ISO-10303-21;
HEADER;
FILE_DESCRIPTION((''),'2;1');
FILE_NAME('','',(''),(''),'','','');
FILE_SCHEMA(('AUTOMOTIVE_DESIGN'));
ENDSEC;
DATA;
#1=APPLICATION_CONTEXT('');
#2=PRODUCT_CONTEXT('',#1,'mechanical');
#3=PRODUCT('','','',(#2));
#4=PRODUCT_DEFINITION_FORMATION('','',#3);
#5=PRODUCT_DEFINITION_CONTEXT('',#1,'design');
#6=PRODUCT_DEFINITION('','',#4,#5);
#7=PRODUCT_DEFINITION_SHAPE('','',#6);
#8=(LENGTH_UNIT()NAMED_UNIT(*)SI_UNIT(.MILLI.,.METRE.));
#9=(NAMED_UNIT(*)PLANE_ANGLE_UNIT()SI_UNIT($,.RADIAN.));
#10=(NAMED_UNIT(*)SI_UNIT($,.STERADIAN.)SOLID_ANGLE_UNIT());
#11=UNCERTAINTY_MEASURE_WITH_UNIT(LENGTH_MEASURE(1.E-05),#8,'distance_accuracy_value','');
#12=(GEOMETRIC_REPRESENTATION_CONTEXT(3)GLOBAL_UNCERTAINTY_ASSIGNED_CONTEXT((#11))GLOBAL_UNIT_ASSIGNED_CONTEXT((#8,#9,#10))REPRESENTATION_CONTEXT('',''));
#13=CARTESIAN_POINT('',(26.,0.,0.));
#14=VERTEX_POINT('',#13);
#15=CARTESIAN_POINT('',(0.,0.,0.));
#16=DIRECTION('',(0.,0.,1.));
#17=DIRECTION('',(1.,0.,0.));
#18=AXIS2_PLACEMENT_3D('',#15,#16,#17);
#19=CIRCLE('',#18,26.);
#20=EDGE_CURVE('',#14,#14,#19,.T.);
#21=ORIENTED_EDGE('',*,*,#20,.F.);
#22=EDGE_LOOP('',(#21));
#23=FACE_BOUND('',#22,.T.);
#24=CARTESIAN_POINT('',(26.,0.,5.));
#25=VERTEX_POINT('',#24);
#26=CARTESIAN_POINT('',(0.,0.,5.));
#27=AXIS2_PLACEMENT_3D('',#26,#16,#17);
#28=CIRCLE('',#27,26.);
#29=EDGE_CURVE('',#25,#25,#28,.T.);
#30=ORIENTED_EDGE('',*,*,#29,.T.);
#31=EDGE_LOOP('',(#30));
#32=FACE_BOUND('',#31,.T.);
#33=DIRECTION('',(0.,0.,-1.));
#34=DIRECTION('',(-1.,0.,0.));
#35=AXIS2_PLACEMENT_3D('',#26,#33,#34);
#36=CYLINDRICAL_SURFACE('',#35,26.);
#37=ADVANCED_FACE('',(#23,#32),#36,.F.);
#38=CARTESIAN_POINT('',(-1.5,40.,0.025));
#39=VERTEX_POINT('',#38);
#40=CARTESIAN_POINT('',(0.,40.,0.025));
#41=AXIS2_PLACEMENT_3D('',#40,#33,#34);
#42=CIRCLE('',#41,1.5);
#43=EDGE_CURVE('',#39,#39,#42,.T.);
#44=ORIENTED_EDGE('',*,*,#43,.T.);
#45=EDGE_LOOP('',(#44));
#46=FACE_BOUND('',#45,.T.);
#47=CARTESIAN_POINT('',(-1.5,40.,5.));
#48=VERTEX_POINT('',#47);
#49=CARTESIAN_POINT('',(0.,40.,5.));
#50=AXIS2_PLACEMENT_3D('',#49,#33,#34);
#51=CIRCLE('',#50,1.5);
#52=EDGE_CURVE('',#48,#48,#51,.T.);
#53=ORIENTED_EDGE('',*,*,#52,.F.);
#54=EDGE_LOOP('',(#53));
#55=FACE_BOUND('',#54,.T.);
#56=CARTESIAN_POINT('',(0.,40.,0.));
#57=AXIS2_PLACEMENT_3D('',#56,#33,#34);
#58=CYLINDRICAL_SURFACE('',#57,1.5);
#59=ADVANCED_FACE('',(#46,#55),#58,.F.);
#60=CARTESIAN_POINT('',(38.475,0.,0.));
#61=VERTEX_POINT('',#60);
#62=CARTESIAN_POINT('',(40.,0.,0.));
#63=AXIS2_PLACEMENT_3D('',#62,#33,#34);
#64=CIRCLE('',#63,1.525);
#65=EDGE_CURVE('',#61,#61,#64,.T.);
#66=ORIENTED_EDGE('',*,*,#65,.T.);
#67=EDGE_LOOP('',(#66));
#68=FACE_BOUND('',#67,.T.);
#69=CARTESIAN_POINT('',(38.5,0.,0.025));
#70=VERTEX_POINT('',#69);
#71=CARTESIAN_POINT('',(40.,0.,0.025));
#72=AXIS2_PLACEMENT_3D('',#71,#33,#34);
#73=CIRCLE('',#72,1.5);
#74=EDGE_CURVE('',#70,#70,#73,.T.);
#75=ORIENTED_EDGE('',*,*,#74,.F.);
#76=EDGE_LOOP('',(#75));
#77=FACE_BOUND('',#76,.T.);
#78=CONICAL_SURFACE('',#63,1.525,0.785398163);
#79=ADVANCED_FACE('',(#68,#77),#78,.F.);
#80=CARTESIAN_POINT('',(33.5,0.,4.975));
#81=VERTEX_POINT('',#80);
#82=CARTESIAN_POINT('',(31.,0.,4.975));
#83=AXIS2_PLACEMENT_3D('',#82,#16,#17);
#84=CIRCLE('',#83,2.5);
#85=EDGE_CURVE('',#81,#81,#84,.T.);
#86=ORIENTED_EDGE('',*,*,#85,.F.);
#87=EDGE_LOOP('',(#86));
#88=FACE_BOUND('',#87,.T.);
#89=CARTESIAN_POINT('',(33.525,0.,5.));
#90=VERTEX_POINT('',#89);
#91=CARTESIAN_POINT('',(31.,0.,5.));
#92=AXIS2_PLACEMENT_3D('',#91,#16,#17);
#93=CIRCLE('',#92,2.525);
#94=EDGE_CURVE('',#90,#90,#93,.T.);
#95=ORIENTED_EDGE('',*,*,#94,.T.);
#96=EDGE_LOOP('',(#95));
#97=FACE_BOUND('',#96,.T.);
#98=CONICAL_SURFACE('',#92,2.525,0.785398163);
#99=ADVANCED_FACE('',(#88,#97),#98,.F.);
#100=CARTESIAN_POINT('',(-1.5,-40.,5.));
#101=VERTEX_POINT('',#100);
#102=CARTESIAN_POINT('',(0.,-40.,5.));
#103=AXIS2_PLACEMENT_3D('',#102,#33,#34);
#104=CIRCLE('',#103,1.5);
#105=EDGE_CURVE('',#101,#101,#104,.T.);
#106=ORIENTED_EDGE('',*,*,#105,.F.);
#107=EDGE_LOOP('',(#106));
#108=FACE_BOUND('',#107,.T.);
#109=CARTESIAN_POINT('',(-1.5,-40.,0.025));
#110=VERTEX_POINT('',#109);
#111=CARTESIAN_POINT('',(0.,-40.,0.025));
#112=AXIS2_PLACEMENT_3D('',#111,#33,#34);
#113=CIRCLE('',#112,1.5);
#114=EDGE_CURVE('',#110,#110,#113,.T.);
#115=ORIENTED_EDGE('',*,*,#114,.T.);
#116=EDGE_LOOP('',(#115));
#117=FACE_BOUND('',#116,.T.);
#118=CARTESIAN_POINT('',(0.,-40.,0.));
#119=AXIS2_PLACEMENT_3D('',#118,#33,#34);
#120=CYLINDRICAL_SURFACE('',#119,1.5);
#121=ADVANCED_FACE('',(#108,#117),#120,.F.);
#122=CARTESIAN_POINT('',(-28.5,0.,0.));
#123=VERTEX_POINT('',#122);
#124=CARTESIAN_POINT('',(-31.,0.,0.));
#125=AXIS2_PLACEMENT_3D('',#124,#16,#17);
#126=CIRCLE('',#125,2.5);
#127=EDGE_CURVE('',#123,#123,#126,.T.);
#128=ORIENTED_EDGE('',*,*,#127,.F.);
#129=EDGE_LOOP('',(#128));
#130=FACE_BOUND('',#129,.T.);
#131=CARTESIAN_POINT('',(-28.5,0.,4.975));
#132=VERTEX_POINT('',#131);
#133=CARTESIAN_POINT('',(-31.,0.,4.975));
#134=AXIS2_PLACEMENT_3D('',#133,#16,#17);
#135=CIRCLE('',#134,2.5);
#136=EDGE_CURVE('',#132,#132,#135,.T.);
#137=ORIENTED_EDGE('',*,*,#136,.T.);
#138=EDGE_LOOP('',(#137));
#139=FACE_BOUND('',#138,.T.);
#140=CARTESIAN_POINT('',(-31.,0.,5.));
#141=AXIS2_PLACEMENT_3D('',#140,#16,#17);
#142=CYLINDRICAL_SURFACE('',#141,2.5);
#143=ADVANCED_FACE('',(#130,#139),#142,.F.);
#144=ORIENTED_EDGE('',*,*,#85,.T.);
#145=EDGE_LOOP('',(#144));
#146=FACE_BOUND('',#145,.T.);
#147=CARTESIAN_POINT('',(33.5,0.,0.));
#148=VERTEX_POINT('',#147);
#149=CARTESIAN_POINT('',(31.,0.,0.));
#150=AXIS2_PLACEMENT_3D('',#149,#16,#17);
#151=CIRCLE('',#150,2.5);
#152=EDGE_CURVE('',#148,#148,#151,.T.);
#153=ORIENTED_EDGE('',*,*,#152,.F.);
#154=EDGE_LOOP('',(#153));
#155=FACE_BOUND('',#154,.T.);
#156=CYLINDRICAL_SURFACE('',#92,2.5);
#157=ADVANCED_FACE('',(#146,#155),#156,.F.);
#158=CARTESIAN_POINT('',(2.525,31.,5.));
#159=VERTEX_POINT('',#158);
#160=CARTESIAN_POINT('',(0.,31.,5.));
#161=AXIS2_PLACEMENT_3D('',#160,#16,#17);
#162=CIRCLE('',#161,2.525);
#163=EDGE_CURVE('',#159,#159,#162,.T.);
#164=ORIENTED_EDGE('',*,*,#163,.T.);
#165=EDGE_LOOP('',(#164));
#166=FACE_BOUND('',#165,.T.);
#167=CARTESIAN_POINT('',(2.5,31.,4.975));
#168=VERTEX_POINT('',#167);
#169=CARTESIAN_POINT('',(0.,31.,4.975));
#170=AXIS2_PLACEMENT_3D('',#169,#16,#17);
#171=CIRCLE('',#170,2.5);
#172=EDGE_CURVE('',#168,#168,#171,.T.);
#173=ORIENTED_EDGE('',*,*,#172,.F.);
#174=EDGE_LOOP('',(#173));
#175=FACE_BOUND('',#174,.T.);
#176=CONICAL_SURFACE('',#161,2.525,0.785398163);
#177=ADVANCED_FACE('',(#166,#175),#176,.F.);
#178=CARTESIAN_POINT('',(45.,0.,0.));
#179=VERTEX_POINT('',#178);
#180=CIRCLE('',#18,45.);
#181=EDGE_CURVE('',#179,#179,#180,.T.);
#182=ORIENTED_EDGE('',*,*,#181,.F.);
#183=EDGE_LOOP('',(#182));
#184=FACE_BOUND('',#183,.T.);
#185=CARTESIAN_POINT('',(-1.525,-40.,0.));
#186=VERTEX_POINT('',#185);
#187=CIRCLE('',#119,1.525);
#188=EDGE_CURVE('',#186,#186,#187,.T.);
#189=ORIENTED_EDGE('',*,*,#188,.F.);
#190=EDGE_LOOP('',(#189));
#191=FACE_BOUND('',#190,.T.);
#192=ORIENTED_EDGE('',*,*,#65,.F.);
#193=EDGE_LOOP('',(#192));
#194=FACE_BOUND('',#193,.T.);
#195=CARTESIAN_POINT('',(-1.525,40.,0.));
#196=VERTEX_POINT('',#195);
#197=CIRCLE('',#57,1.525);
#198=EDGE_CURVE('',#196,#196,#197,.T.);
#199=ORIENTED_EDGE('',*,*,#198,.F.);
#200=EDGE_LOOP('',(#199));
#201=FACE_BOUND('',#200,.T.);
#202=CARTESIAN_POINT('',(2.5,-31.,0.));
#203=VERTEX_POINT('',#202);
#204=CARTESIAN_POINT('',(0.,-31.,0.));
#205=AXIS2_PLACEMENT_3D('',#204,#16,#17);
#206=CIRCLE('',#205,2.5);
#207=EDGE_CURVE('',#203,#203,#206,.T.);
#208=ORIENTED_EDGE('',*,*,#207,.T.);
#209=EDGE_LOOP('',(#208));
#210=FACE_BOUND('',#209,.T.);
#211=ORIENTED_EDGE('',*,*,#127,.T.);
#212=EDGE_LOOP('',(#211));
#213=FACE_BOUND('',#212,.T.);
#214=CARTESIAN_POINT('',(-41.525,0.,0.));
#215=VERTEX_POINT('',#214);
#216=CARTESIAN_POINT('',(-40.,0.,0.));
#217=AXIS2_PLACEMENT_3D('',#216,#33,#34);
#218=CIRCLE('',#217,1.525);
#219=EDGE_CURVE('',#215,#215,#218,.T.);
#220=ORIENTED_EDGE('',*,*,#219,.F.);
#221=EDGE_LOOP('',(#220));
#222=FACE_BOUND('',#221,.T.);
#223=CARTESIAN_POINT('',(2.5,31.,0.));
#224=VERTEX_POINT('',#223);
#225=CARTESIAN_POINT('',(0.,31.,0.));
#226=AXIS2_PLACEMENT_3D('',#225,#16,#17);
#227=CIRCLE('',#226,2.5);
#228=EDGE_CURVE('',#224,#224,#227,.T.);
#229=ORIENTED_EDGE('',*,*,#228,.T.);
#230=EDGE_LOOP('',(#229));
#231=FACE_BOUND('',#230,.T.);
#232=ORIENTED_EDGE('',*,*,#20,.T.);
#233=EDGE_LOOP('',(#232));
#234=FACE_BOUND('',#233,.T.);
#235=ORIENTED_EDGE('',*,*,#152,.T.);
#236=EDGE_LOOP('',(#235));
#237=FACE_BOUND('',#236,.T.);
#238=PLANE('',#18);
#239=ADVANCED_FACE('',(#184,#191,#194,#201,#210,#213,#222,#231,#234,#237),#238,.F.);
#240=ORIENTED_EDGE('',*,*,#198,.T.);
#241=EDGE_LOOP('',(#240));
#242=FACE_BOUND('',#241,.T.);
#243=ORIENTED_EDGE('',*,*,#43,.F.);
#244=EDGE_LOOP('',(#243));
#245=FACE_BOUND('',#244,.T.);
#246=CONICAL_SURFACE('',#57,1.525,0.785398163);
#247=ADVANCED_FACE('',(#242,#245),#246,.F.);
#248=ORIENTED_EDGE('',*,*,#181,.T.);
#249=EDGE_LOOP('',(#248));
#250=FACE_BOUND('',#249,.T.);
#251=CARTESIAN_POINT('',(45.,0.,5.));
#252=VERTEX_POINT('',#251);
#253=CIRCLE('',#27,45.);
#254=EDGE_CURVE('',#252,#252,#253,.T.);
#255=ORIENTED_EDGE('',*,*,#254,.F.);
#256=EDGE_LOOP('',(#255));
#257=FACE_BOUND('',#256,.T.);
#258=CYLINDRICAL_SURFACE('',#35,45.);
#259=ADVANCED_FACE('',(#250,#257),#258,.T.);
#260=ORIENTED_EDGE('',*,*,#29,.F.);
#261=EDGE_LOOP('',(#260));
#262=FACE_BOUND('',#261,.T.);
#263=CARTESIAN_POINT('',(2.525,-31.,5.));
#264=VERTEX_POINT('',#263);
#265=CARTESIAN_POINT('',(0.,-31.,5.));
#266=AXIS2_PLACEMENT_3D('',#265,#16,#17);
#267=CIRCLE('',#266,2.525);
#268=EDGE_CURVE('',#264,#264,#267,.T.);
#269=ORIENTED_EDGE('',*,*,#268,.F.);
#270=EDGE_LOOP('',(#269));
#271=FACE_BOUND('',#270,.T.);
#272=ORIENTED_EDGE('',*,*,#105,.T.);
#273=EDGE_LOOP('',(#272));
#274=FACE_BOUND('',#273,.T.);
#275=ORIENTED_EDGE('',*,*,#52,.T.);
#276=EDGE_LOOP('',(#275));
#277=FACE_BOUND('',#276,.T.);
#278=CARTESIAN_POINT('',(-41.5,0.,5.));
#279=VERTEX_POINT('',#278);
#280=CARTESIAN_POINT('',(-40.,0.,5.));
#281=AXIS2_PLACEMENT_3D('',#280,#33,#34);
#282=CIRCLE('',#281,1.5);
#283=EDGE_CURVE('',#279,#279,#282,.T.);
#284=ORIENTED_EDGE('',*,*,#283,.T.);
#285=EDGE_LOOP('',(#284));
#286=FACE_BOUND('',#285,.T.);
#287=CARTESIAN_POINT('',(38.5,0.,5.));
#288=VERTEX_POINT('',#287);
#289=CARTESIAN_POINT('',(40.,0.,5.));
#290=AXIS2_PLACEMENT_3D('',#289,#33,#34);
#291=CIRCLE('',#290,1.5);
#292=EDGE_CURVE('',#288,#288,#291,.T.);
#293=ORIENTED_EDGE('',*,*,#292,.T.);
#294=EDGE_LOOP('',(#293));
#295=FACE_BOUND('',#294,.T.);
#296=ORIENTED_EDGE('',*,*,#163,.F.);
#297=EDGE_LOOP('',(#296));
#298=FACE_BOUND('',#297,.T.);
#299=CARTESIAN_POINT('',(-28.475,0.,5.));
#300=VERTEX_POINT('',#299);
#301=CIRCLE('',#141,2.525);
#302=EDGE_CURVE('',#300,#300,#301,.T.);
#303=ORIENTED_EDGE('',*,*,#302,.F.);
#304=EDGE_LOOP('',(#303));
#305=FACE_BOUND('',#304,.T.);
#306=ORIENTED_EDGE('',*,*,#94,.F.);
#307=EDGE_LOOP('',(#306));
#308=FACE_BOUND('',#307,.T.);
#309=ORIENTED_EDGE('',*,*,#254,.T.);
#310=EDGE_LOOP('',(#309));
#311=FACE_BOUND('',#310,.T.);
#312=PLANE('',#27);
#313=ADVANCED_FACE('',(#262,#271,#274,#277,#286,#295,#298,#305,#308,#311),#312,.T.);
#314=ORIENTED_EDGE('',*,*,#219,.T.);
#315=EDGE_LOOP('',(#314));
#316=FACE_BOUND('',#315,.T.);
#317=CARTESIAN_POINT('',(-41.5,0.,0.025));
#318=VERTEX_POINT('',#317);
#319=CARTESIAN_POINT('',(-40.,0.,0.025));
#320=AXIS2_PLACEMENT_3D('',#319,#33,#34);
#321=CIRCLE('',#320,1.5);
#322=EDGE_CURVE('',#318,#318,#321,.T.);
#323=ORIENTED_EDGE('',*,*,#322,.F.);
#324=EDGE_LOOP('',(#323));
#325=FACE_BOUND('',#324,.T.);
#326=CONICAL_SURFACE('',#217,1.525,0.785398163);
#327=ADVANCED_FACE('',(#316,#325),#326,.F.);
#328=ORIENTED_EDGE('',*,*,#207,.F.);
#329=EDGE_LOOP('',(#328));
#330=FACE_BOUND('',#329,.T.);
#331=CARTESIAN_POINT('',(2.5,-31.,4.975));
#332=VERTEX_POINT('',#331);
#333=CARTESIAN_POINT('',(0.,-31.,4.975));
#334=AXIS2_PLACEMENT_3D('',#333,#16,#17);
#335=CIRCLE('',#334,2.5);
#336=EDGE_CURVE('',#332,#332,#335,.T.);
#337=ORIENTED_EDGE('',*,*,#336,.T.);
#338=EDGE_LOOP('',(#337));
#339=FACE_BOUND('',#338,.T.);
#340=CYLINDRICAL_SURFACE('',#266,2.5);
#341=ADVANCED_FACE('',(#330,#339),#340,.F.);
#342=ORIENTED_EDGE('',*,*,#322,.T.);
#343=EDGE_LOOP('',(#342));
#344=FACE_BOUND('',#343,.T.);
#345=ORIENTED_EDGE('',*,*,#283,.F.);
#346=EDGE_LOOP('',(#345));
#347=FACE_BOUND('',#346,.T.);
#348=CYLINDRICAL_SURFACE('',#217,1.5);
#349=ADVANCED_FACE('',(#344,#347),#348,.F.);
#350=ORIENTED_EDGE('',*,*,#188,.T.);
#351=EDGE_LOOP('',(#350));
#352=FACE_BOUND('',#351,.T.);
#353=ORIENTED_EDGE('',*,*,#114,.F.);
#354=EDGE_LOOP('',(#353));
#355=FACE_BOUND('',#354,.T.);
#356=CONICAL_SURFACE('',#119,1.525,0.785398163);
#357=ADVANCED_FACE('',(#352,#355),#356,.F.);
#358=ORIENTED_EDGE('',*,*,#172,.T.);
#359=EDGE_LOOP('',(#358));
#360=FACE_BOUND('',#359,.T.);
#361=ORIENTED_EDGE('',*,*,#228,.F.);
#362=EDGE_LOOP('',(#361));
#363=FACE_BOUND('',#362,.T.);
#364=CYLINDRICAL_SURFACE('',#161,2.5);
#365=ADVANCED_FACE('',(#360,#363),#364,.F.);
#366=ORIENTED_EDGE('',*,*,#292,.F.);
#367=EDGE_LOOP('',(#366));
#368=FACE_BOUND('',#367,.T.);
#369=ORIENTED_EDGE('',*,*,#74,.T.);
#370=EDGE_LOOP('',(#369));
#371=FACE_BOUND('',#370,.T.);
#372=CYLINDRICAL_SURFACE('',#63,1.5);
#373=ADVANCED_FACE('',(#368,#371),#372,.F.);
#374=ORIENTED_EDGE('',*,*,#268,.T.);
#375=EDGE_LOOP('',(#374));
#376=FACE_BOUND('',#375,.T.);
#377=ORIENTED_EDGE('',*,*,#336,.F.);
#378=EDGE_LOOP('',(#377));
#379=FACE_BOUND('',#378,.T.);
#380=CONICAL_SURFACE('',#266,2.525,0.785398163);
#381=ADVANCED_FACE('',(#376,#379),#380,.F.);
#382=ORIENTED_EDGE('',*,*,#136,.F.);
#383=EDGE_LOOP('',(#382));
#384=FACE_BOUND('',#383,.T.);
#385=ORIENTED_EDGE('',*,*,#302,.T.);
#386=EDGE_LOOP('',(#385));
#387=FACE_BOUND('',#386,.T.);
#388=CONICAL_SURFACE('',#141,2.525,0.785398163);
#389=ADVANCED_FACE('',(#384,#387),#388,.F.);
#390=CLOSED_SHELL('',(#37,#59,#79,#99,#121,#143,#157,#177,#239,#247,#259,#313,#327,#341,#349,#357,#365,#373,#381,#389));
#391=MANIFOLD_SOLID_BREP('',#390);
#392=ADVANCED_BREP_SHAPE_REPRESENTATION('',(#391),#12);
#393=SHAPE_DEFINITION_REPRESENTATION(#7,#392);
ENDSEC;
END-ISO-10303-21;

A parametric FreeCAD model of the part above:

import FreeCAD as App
import Part
import Sketcher
from FreeCAD import Vector
Q = App.Units.Quantity

doc = App.newDocument("Part")
body = doc.addObject("PartDesign::Body", "Body")

sketch1 = doc.addObject("Sketcher::SketchObject", "Sketch")
body.addObject(sketch1)
sketch1.AttachmentSupport = (doc.XY_Plane, [""])
sketch1.MapMode = "FlatFace"
sketch1.addGeometry([
    Part.Circle(Vector(0, 0, 0), Vector(0, 0, 1), 45),
    Part.Circle(Vector(0, 0, 0), Vector(0, 0, 1), 26),
], False)
sketch1.addConstraint([
    Sketcher.Constraint("Coincident", 0, 3, -1, 1),
    Sketcher.Constraint("Coincident", 1, 3, -1, 1),
    Sketcher.Constraint("Diameter", 0, Q("90 mm")),
    Sketcher.Constraint("Diameter", 1, Q("52 mm")),
])
pad1 = doc.addObject("PartDesign::Pad", "Pad")
body.addObject(pad1)
pad1.Profile = sketch1
pad1.Length = 5

sketch2 = doc.addObject("Sketcher::SketchObject", "Sketch001")
body.addObject(sketch2)
sketch2.AttachmentSupport = (doc.XY_Plane, [""])
sketch2.MapMode = "FlatFace"
sketch2.AttachmentOffset = App.Placement(Vector(0, 0, 5), App.Rotation())
sketch2.addGeometry([
    Part.Circle(Vector(0, 31, 0), Vector(0, 0, 1), 2.5),
    Part.Circle(Vector(-31, 0, 0), Vector(0, 0, 1), 2.5),
    Part.Circle(Vector(0, -31, 0), Vector(0, 0, 1), 2.5),
    Part.Circle(Vector(31, 0, 0), Vector(0, 0, 1), 2.5),
], False)
sketch2.addConstraint([
    Sketcher.Constraint("Equal", 0, 1),
    Sketcher.Constraint("Equal", 1, 2),
    Sketcher.Constraint("Equal", 2, 3),
    Sketcher.Constraint("Symmetric", 0, 3, 2, 3, -1, 1),
    Sketcher.Constraint("Symmetric", 1, 3, 3, 3, -1, 1),
    Sketcher.Constraint("PointOnObject", 0, 3, -2),
    Sketcher.Constraint("PointOnObject", 1, 3, -1),
    Sketcher.Constraint("Diameter", 0, Q("5 mm")),
    Sketcher.Constraint("DistanceY", -1, 1, 0, 3, Q("31 mm")),
    Sketcher.Constraint("DistanceX", 1, 3, -1, 1, Q("31 mm")),
])
doc.recompute()
hole = doc.addObject("PartDesign::Hole", "Hole")
body.addObject(hole)
hole.Profile = sketch2
hole.ThreadType = "None"
hole.Diameter = 5
hole.DepthType = "ThroughAll"
hole.HoleCutType = "Countersink"
hole.HoleCutDiameter = 5.05
hole.HoleCutCountersinkAngle = 90

sketch3 = doc.addObject("Sketcher::SketchObject", "Sketch002")
body.addObject(sketch3)
sketch3.AttachmentSupport = (doc.XY_Plane, [""])
sketch3.MapMode = "FlatFace"
sketch3.addGeometry([
    Part.Circle(Vector(0, 40, 0), Vector(0, 0, 1), 1.5),
    Part.Circle(Vector(-40, 0, 0), Vector(0, 0, 1), 1.5),
    Part.Circle(Vector(0, -40, 0), Vector(0, 0, 1), 1.5),
    Part.Circle(Vector(40, 0, 0), Vector(0, 0, 1), 1.5),
], False)
sketch3.addConstraint([
    Sketcher.Constraint("Equal", 0, 1),
    Sketcher.Constraint("Equal", 1, 2),
    Sketcher.Constraint("Equal", 2, 3),
    Sketcher.Constraint("Symmetric", 0, 3, 2, 3, -1, 1),
    Sketcher.Constraint("Symmetric", 1, 3, 3, 3, -1, 1),
    Sketcher.Constraint("PointOnObject", 0, 3, -2),
    Sketcher.Constraint("PointOnObject", 1, 3, -1),
    Sketcher.Constraint("Diameter", 0, Q("3 mm")),
    Sketcher.Constraint("DistanceY", -1, 1, 0, 3, Q("40 mm")),
    Sketcher.Constraint("DistanceX", 1, 3, -1, 1, Q("40 mm")),
])
doc.recompute()
hole2 = doc.addObject("PartDesign::Hole", "Hole001")
body.addObject(hole2)
hole2.Profile = sketch3
hole2.ThreadType = "None"
hole2.Diameter = 3
hole2.DepthType = "ThroughAll"
hole2.HoleCutType = "Countersink"
hole2.HoleCutDiameter = 3.05
hole2.HoleCutCountersinkAngle = 90
hole2.Reversed = True

doc.recompute()
